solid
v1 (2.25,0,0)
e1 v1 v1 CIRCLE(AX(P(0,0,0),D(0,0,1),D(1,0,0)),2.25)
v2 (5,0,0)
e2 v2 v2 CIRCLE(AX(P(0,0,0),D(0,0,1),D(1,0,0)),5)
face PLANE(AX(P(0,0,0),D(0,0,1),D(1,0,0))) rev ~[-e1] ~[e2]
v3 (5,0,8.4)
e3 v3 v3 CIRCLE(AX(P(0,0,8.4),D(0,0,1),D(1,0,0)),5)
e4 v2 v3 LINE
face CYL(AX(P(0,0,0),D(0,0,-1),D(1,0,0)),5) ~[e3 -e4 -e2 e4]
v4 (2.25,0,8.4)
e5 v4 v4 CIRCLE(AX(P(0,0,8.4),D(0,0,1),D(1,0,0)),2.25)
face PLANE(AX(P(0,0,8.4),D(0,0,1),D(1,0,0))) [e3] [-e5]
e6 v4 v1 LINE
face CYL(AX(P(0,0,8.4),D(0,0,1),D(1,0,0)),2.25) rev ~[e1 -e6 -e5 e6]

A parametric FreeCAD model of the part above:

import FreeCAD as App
import Part
import Sketcher
from FreeCAD import Vector
Q = App.Units.Quantity

doc = App.newDocument("Part")
body = doc.addObject("PartDesign::Body", "Body")

# Sketch on XY plane
sketch1 = body.newObject("Sketcher::SketchObject", "Sketch")
sketch1.AttachmentSupport = (doc.getObject("XY_Plane"), [""])
sketch1.MapMode = "FlatFace"
sketch1.addGeometry(Part.Circle(Vector(0, 0, 0), Vector(0, 0, 1), 5), False)
sketch1.addConstraint([
    Sketcher.Constraint("Coincident", 0, 3, -1, 1),
    Sketcher.Constraint("Diameter", 0, Q("10 mm")),
])
pad1 = body.newObject("PartDesign::Pad", "Pad")
pad1.Profile = sketch1
pad1.Length = 8.4

# Sketch on XY plane
sketch2 = body.newObject("Sketcher::SketchObject", "Sketch001")
sketch2.AttachmentSupport = (doc.getObject("XY_Plane"), [""])
sketch2.MapMode = "FlatFace"
sketch2.AttachmentOffset = App.Placement(Vector(0, 0, 8.4), App.Rotation())
sketch2.addGeometry(Part.Circle(Vector(0, 0, 0), Vector(0, 0, 1), 2.2), False)
sketch2.addConstraint([
    Sketcher.Constraint("Coincident", 0, 3, -1, 1),
    Sketcher.Constraint("Diameter", 0, Q("4.5 mm")),
])
pocket1 = body.newObject("PartDesign::Pocket", "Pocket")
pocket1.Profile = sketch2
pocket1.Type = "ThroughAll"

doc.recompute()
